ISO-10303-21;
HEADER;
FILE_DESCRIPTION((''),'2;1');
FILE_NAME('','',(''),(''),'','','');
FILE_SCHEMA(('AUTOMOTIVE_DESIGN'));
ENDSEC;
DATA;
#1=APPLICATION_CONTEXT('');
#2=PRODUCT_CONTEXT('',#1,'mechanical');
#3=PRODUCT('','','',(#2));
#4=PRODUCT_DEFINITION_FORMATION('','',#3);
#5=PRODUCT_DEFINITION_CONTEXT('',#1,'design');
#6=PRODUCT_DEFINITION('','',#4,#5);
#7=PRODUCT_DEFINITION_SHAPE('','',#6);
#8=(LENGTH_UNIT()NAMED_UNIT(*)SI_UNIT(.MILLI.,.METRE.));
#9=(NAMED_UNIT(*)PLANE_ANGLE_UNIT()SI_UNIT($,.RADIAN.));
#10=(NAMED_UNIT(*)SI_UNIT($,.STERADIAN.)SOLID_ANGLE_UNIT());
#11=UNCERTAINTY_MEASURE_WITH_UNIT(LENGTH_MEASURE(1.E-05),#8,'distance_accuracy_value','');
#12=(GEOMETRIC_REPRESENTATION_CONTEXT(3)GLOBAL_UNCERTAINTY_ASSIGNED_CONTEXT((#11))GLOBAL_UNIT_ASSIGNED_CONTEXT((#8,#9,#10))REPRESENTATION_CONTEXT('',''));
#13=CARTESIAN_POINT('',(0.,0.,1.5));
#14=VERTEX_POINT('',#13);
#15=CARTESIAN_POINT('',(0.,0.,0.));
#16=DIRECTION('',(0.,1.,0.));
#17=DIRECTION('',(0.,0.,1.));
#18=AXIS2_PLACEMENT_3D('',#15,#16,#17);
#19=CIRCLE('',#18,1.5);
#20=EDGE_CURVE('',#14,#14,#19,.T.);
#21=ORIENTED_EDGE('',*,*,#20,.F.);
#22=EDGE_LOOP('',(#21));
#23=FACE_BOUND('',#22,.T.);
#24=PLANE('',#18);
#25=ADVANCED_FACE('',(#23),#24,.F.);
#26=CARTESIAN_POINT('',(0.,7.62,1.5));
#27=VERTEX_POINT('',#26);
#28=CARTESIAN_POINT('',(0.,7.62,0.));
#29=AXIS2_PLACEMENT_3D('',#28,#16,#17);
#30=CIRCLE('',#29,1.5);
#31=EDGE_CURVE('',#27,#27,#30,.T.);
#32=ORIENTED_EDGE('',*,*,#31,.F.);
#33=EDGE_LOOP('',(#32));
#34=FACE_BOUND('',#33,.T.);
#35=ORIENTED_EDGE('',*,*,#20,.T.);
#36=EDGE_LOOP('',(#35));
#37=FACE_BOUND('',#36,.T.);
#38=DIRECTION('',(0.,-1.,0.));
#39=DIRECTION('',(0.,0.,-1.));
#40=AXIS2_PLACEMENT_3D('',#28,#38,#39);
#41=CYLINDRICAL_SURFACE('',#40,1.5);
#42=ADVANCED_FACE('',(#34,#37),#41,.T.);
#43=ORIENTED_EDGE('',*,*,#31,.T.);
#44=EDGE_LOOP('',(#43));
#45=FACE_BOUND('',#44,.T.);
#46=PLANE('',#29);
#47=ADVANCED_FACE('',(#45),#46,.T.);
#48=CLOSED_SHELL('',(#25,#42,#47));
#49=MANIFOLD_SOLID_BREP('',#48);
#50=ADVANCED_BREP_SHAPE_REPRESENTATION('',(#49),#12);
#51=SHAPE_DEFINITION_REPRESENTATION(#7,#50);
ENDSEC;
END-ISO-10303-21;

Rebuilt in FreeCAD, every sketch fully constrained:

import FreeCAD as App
import Part
import Sketcher
from FreeCAD import Vector

doc = App.newDocument("Part")
params = doc.addObject("Spreadsheet::Sheet", "Params")
for row, (alias, value) in enumerate([
    ("sketch1_diameter", "3 mm"),
    ("pad1_length", "7.62 mm"),
], start=1):
    params.set(f"A{row}", alias)
    params.set(f"B{row}", "=" + value)
    params.setAlias(f"B{row}", alias)

body = doc.addObject("PartDesign::Body", "Body")

# Sketch on XZ plane
sketch1 = body.newObject("Sketcher::SketchObject", "Sketch")
sketch1.AttachmentSupport = (doc.getObject("XZ_Plane"), [""])
sketch1.MapMode = "FlatFace"
sketch1.addGeometry(Part.Circle(Vector(0, 0, 0), Vector(0, 0, 1), 1.5), False)
sketch1.addConstraint([
    Sketcher.Constraint("Coincident", 0, 3, -1, 1),
    Sketcher.Constraint("Diameter", 0, 3.0),
])
sketch1.setExpression("Constraints[1]", "Params.sketch1_diameter")
pad1 = body.newObject("PartDesign::Pad", "Pad")
pad1.Profile = sketch1
pad1.setExpression("Length", "Params.pad1_length")
pad1.Reversed = True

doc.recompute()
